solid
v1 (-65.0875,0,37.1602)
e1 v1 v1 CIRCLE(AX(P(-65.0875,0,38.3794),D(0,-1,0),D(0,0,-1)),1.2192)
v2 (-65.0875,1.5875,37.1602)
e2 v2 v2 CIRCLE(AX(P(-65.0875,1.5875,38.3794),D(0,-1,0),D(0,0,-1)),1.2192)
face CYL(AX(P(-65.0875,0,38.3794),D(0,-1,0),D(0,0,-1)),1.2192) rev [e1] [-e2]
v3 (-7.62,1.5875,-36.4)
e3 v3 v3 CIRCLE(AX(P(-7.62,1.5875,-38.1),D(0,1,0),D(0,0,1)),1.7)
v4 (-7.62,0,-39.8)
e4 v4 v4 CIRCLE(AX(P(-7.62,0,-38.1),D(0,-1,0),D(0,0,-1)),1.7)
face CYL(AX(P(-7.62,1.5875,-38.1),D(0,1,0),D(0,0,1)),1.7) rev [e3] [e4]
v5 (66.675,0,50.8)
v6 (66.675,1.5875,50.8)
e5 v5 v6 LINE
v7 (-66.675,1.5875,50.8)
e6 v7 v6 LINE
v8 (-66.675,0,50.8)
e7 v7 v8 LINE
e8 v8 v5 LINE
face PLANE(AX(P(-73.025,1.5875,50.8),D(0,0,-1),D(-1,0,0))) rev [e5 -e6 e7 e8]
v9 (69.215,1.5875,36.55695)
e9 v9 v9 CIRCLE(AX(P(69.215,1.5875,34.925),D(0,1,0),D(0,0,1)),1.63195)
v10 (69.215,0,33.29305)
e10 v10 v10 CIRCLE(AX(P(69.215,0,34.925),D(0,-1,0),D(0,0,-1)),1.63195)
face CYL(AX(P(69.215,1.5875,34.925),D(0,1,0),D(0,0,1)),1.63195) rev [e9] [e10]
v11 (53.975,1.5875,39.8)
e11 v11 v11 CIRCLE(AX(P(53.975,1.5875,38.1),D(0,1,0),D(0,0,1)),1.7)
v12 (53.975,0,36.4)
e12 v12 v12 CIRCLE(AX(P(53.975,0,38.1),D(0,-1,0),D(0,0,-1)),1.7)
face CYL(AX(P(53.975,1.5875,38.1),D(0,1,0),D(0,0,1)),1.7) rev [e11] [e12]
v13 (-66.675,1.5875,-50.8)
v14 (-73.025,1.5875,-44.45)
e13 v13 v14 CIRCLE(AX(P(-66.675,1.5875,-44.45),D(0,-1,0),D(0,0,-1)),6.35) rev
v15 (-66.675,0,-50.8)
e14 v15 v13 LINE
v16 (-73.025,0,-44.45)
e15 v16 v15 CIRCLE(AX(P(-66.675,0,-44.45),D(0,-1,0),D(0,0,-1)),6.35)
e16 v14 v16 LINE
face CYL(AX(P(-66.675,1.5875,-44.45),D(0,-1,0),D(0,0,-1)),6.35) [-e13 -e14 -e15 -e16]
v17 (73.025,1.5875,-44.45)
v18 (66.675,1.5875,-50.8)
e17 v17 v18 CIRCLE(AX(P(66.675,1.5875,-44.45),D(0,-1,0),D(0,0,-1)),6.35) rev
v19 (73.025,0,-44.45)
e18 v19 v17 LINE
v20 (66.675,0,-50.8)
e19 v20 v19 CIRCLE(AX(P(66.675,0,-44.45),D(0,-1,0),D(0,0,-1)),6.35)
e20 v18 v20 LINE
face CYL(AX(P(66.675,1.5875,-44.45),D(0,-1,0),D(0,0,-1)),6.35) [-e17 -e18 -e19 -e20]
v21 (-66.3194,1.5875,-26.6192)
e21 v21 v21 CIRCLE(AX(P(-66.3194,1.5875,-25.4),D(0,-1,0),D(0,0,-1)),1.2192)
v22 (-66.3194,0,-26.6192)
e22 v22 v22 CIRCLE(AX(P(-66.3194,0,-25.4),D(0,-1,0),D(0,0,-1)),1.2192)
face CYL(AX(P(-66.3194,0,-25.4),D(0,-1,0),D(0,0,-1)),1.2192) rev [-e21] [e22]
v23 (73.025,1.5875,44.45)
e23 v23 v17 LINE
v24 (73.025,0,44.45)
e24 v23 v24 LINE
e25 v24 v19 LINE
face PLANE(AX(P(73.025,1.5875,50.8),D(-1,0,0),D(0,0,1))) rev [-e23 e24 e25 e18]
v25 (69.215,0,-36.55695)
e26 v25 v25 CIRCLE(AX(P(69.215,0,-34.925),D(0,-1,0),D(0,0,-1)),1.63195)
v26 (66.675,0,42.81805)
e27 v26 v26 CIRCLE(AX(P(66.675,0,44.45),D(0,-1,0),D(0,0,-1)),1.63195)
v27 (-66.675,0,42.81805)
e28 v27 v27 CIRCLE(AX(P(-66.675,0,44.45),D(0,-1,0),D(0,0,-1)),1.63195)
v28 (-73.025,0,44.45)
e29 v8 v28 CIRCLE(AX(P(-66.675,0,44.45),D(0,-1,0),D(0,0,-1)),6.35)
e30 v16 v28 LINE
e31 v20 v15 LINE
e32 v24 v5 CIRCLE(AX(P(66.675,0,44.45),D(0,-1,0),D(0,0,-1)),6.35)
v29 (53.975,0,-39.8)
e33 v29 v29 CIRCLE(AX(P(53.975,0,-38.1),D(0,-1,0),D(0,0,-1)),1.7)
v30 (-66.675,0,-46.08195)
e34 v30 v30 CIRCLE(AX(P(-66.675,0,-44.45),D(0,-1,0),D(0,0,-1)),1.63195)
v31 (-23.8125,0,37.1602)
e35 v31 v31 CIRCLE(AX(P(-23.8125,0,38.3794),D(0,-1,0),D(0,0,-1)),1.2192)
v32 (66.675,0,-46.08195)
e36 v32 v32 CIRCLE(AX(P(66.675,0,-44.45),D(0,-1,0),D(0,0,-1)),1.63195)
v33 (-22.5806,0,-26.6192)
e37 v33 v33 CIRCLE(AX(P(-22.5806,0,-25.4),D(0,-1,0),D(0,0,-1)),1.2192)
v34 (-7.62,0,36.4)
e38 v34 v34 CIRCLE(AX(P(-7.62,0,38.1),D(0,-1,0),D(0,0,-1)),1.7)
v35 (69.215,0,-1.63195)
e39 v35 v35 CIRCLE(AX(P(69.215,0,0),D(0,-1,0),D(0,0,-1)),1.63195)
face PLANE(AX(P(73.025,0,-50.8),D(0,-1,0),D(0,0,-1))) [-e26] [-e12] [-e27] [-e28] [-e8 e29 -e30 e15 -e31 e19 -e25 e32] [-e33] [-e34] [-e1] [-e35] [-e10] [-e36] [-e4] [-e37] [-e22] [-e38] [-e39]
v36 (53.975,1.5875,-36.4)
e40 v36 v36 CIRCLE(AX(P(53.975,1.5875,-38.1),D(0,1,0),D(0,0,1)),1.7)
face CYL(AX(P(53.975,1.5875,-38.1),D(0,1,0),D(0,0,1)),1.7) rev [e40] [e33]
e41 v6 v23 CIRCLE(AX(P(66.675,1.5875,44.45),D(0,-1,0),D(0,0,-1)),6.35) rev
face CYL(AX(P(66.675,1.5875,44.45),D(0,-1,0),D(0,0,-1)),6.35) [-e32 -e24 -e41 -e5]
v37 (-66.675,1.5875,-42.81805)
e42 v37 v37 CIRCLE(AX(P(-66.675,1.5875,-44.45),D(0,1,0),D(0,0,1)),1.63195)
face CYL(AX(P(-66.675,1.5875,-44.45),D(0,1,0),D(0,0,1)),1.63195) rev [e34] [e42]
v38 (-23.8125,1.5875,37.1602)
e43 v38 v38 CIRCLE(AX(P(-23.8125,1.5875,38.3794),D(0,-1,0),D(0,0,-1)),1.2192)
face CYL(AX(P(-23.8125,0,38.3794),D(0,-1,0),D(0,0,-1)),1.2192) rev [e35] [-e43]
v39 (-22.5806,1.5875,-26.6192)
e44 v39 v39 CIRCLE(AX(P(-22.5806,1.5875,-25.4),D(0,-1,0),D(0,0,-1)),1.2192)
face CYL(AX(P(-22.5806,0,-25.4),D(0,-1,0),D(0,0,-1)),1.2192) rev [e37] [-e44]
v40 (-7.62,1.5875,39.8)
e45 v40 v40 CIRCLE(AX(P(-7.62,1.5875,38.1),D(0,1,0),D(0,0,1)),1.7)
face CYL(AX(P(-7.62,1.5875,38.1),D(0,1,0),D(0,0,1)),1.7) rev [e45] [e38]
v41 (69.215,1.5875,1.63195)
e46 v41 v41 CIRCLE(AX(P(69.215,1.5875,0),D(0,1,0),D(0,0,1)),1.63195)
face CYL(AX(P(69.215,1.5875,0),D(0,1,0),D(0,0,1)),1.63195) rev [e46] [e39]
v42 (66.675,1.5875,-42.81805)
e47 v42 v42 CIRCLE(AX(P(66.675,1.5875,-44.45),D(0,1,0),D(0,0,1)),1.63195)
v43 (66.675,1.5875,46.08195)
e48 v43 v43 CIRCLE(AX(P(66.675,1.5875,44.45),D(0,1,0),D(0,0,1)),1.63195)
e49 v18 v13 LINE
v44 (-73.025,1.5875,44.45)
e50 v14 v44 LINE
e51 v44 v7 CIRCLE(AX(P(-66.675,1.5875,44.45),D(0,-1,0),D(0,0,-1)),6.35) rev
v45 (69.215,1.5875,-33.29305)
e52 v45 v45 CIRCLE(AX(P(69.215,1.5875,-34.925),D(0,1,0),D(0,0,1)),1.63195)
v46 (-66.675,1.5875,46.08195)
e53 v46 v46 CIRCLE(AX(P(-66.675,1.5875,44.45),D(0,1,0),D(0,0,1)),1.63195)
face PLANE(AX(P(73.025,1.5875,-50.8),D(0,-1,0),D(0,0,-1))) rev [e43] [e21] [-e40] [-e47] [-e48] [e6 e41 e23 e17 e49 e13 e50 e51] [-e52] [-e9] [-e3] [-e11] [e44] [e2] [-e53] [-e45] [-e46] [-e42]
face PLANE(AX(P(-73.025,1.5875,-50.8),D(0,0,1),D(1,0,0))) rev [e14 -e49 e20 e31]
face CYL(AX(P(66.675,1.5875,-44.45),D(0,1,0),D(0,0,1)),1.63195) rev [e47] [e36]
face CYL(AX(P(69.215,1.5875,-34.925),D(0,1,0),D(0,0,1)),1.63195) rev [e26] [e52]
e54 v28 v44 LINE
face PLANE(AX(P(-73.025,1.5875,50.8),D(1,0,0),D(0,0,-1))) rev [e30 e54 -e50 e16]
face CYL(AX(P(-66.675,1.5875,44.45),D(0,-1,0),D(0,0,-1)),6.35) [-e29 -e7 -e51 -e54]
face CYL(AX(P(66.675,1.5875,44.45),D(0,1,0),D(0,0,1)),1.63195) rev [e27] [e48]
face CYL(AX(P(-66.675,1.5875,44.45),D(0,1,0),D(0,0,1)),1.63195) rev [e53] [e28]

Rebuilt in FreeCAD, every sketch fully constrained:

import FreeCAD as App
import Part
import Sketcher
Q = App.Units.Quantity


def edges_at(feature, points):
    """Names of the edges that pass closest to the given points."""
    edges = feature.Shape.Edges
    near = lambda p: min(range(len(edges)), key=lambda i: edges[i].distToShape(Part.Vertex(*p))[0])
    return sorted({f"Edge{near(p) + 1}" for p in points})

doc = App.newDocument("Part")
body = doc.addObject("PartDesign::Body", "Body")

sketch1 = doc.addObject("Sketcher::SketchObject", "Sketch")
body.addObject(sketch1)
sketch1.AttachmentSupport = (doc.XZ_Plane, [""])
sketch1.MapMode = "FlatFace"
sketch1.addGeometry(Part.LineSegment(App.Vector(-73, -51, 0), App.Vector(-73, 51, 0)), False)
sketch1.addGeometry(Part.LineSegment(App.Vector(-73, 51, 0), App.Vector(73, 51, 0)), False)
sketch1.addGeometry(Part.LineSegment(App.Vector(73, 51, 0), App.Vector(73, -51, 0)), False)
sketch1.addGeometry(Part.LineSegment(App.Vector(73, -51, 0), App.Vector(-73, -51, 0)), False)
sketch1.addConstraint(Sketcher.Constraint("Coincident", 0, 2, 1, 1))
sketch1.addConstraint(Sketcher.Constraint("Coincident", 1, 2, 2, 1))
sketch1.addConstraint(Sketcher.Constraint("Coincident", 2, 2, 3, 1))
sketch1.addConstraint(Sketcher.Constraint("Coincident", 3, 2, 0, 1))
sketch1.addConstraint(Sketcher.Constraint("Vertical", 0))
sketch1.addConstraint(Sketcher.Constraint("Horizontal", 1))
sketch1.addConstraint(Sketcher.Constraint("Vertical", 2))
sketch1.addConstraint(Sketcher.Constraint("Horizontal", 3))
sketch1.addConstraint(Sketcher.Constraint("Symmetric", 0, 2, 2, 2, -1, 1))
sketch1.addConstraint(Sketcher.Constraint("DistanceY", 0, 1, 0, 2, Q("4 in")))
sketch1.addConstraint(Sketcher.Constraint("DistanceX", 1, 1, 1, 2, Q("5.75 in")))
pad1 = doc.addObject("PartDesign::Pad", "Pad")
body.addObject(pad1)
pad1.Profile = sketch1
pad1.Length = Q("0.0625 in")
pad1.Reversed = True
doc.recompute()

fillet = doc.addObject("PartDesign::Fillet", "Fillet")
body.addObject(fillet)
fillet.Base = (pad1, edges_at(pad1, [
    (73.025, 0.794, 50.8),
    (-73.025, 0.794, 50.8),
    (-73.025, 0.794, -50.8),
    (73.025, 0.794, -50.8),
]))
fillet.Radius = Q("0.25 in")

sketch2 = doc.addObject("Sketcher::SketchObject", "Sketch001")
body.addObject(sketch2)
sketch2.AttachmentSupport = (doc.XZ_Plane, [""])
sketch2.MapMode = "FlatFace"
sketch2.AttachmentOffset = App.Placement(App.Vector(0, 0, -0.0625 * 25.4), App.Rotation())
sketch2.addGeometry(Part.Circle(App.Vector(66.7, 44.5, 0), App.Vector(0, 0, 1), 1.6), False)
sketch2.addGeometry(Part.Circle(App.Vector(66.7, -44.5, 0), App.Vector(0, 0, 1), 1.6), False)
sketch2.addGeometry(Part.Circle(App.Vector(-66.7, -44.5, 0), App.Vector(0, 0, 1), 1.6), False)
sketch2.addGeometry(Part.Circle(App.Vector(-66.7, 44.5, 0), App.Vector(0, 0, 1), 1.6), False)
sketch2.addConstraint(Sketcher.Constraint("Equal", 0, 1))
sketch2.addConstraint(Sketcher.Constraint("Equal", 1, 2))
sketch2.addConstraint(Sketcher.Constraint("Equal", 2, 3))
sketch2.addConstraint(Sketcher.Constraint("Symmetric", 0, 3, 2, 3, -1, 1))
sketch2.addConstraint(Sketcher.Constraint("Symmetric", 1, 3, 3, 3, -1, 1))
sketch2.addConstraint(Sketcher.Constraint("Symmetric", 1, 3, 2, 3, -2))
sketch2.addConstraint(Sketcher.Constraint("Diameter", 0, Q("0.1285 in")))
sketch2.addConstraint(Sketcher.Constraint("DistanceY", 1, 3, 0, 3, Q("3.5 in")))
sketch2.addConstraint(Sketcher.Constraint("DistanceX", 2, 3, 1, 3, Q("5.25 in")))
doc.recompute()
hole = doc.addObject("PartDesign::Hole", "Hole")
body.addObject(hole)
hole.Profile = sketch2
hole.ThreadType = "None"
hole.Diameter = Q("0.1285 in")
hole.DepthType = "Dimension"
hole.Depth = Q("2 in")
hole.DrillPoint = "Angled"
hole.DrillPointAngle = 118
hole.Reversed = True

sketch3 = doc.addObject("Sketcher::SketchObject", "Sketch002")
body.addObject(sketch3)
sketch3.AttachmentSupport = (doc.XZ_Plane, [""])
sketch3.MapMode = "FlatFace"
sketch3.AttachmentOffset = App.Placement(App.Vector(0, 0, -0.0625 * 25.4), App.Rotation())
sketch3.addGeometry(Part.Circle(App.Vector(-7.6, -38.1, 0), App.Vector(0, 0, 1), 1.7), False)
sketch3.addGeometry(Part.Circle(App.Vector(54, -38.1, 0), App.Vector(0, 0, 1), 1.7), False)
sketch3.addGeometry(Part.Circle(App.Vector(-7.6, 38.1, 0), App.Vector(0, 0, 1), 1.7), False)
sketch3.addGeometry(Part.Circle(App.Vector(54, 38.1, 0), App.Vector(0, 0, 1), 1.7), False)
sketch3.addConstraint(Sketcher.Constraint("Equal", 0, 1))
sketch3.addConstraint(Sketcher.Constraint("Equal", 1, 2))
sketch3.addConstraint(Sketcher.Constraint("Equal", 2, 3))
sketch3.addConstraint(Sketcher.Constraint("Symmetric", 0, 3, 2, 3, -1))
sketch3.addConstraint(Sketcher.Constraint("Symmetric", 1, 3, 3, 3, -1))
sketch3.addConstraint(Sketcher.Constraint("Horizontal", 0, 3, 1, 3))
sketch3.addConstraint(Sketcher.Constraint("DistanceY", 0, 3, 2, 3, Q("3 in")))
sketch3.addConstraint(Sketcher.Constraint("DistanceX", 0, 3, -1, 1, Q("0.3 in")))
sketch3.addConstraint(Sketcher.Constraint("Diameter", 0, Q("3.4 mm")))
sketch3.addConstraint(Sketcher.Constraint("DistanceX", -1, 1, 1, 3, Q("2.125 in")))
doc.recompute()
hole2 = doc.addObject("PartDesign::Hole", "Hole001")
body.addObject(hole2)
hole2.Profile = sketch3
hole2.ThreadType = "None"
hole2.Diameter = 3.4
hole2.DepthType = "ThroughAll"
hole2.Reversed = True

sketch4 = doc.addObject("Sketcher::SketchObject", "Sketch003")
body.addObject(sketch4)
sketch4.AttachmentSupport = (doc.XZ_Plane, [""])
sketch4.MapMode = "FlatFace"
sketch4.AttachmentOffset = App.Placement(App.Vector(0, 0, -0.0625 * 25.4), App.Rotation())
sketch4.addGeometry(Part.Circle(App.Vector(69.2, 0, 0), App.Vector(0, 0, 1), 1.6), False)
sketch4.addGeometry(Part.Circle(App.Vector(69.2, 34.9, 0), App.Vector(0, 0, 1), 1.6), False)
sketch4.addGeometry(Part.Circle(App.Vector(69.2, -34.9, 0), App.Vector(0, 0, 1), 1.6), False)
sketch4.addConstraint(Sketcher.Constraint("Equal", 0, 1))
sketch4.addConstraint(Sketcher.Constraint("Equal", 1, 2))
sketch4.addConstraint(Sketcher.Constraint("Symmetric", 1, 3, 2, 3, -1))
sketch4.addConstraint(Sketcher.Constraint("PointOnObject", 0, 3, -1))
sketch4.addConstraint(Sketcher.Constraint("Vertical", 0, 3, 1, 3))
sketch4.addConstraint(Sketcher.Constraint("Diameter", 0, Q("0.1285 in")))
sketch4.addConstraint(Sketcher.Constraint("DistanceY", 2, 3, 1, 3, Q("2.75 in")))
sketch4.addConstraint(Sketcher.Constraint("DistanceX", -1, 1, 0, 3, Q("2.725 in")))
doc.recompute()
hole3 = doc.addObject("PartDesign::Hole", "Hole002")
body.addObject(hole3)
hole3.Profile = sketch4
hole3.ThreadType = "None"
hole3.Diameter = Q("0.1285 in")
hole3.DepthType = "ThroughAll"
hole3.Reversed = True

sketch5 = doc.addObject("Sketcher::SketchObject", "Sketch004")
body.addObject(sketch5)
sketch5.AttachmentSupport = (doc.XZ_Plane, [""])
sketch5.MapMode = "FlatFace"
sketch5.addGeometry(Part.Circle(App.Vector(-66.3, -25.4, 0), App.Vector(0, 0, 1), 1.2), False)
sketch5.addGeometry(Part.Circle(App.Vector(-22.6, -25.4, 0), App.Vector(0, 0, 1), 1.2), False)
sketch5.addGeometry(Part.Circle(App.Vector(-65.1, 38.4, 0), App.Vector(0, 0, 1), 1.2), False)
sketch5.addGeometry(Part.Circle(App.Vector(-23.8, 38.4, 0), App.Vector(0, 0, 1), 1.2), False)
sketch5.addConstraint(Sketcher.Constraint("Equal", 0, 1))
sketch5.addConstraint(Sketcher.Constraint("Equal", 1, 2))
sketch5.addConstraint(Sketcher.Constraint("Equal", 2, 3))
sketch5.addConstraint(Sketcher.Constraint("Horizontal", 0, 3, 1, 3))
sketch5.addConstraint(Sketcher.Constraint("Horizontal", 2, 3, 3, 3))
sketch5.addConstraint(Sketcher.Constraint("Diameter", 0, Q("0.096 in")))
sketch5.addConstraint(Sketcher.Constraint("DistanceY", 0, 3, -1, 1, Q("1 in")))
sketch5.addConstraint(Sketcher.Constraint("DistanceX", 0, 3, -1, 1, Q("2.611 in")))
sketch5.addConstraint(Sketcher.Constraint("DistanceX", 1, 3, -1, 1, Q("0.889 in")))
sketch5.addConstraint(Sketcher.Constraint("DistanceX", 2, 3, -1, 1, Q("2.5625 in")))
sketch5.addConstraint(Sketcher.Constraint("DistanceY", -1, 1, 2, 3, Q("1.511 in")))
sketch5.addConstraint(Sketcher.Constraint("DistanceX", 3, 3, -1, 1, Q("0.9375 in")))
doc.recompute()
hole4 = doc.addObject("PartDesign::Hole", "Hole003")
body.addObject(hole4)
hole4.Profile = sketch5
hole4.ThreadType = "None"
hole4.Diameter = Q("0.096 in")
hole4.DepthType = "ThroughAll"

doc.recompute()
